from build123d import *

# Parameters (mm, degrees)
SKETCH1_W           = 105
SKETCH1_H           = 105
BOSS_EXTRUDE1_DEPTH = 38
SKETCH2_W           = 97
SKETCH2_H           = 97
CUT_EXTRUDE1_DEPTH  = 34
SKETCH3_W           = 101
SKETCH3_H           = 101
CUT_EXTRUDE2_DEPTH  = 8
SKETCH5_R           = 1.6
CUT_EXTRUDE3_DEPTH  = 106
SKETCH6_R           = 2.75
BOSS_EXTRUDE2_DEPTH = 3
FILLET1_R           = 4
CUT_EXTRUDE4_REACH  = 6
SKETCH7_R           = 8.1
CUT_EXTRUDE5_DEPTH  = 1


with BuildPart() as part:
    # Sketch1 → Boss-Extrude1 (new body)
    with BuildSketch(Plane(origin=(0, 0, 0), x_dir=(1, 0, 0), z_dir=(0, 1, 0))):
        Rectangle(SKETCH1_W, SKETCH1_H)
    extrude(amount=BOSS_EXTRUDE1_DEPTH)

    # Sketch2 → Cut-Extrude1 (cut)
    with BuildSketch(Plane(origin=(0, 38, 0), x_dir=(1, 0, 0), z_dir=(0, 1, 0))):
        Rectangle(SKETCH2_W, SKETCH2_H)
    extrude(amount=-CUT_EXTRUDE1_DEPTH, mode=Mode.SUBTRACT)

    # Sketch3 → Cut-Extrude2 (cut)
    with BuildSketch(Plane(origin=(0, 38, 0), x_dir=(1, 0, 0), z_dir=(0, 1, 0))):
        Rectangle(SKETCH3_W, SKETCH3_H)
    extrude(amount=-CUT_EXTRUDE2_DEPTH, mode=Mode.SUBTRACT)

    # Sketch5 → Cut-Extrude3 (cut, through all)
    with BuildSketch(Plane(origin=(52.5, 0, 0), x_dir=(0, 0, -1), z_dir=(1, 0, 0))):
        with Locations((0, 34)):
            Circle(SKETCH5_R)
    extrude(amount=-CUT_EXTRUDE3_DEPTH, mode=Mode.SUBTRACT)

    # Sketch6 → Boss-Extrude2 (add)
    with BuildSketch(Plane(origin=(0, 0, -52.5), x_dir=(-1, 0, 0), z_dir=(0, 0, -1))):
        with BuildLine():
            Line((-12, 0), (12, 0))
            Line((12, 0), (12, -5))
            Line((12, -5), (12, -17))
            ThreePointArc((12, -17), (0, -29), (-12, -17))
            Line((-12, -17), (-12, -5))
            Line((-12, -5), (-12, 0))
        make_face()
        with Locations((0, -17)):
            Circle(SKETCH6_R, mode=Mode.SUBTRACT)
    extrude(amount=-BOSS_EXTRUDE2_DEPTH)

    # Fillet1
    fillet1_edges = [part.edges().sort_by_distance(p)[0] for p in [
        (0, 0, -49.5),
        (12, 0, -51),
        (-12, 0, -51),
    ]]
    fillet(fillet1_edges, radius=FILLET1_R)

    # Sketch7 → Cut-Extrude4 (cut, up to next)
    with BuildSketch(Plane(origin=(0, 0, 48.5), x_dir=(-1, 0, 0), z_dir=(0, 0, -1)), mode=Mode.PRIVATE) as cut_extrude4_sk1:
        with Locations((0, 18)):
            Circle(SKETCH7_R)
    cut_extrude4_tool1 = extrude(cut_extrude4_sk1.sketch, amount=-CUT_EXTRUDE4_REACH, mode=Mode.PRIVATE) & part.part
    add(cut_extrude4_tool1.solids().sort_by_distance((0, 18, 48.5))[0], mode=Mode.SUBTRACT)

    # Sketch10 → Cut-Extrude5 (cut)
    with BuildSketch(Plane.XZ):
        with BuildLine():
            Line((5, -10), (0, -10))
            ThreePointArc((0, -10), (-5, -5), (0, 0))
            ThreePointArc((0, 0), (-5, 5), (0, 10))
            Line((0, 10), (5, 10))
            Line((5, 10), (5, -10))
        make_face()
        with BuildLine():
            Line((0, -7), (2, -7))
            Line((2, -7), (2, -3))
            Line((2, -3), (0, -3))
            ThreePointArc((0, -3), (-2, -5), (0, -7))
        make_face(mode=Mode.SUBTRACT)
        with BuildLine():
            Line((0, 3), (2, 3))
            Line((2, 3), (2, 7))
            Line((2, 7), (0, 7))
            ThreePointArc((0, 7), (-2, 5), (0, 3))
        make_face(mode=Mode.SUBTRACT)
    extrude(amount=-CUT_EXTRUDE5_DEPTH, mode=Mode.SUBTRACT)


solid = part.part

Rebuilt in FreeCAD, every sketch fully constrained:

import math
import FreeCAD as App
import Part
import Sketcher

V = App.Vector


def edges_at(feature, points):
    """Names of the edges that pass closest to the given points."""
    edges = feature.Shape.Edges
    near = lambda p: min(range(len(edges)), key=lambda i: edges[i].distToShape(Part.Vertex(*p))[0])
    return sorted({f"Edge{near(p) + 1}" for p in points})

doc = App.newDocument("Part")
body = doc.addObject("PartDesign::Body", "Body")

# Sketch on XZ plane
sketch1 = body.newObject("Sketcher::SketchObject", "Sketch")
sketch1.AttachmentSupport = (doc.getObject("XZ_Plane"), [""])
sketch1.MapMode = "FlatFace"
sketch1.addGeometry(Part.LineSegment(V(-52, -52, 0), V(-52, 52, 0)), False)
sketch1.addGeometry(Part.LineSegment(V(-52, 52, 0), V(52, 52, 0)), False)
sketch1.addGeometry(Part.LineSegment(V(52, 52, 0), V(52, -52, 0)), False)
sketch1.addGeometry(Part.LineSegment(V(52, -52, 0), V(-52, -52, 0)), False)
sketch1.addConstraint(Sketcher.Constraint("Coincident", 0, 2, 1, 1))
sketch1.addConstraint(Sketcher.Constraint("Coincident", 1, 2, 2, 1))
sketch1.addConstraint(Sketcher.Constraint("Coincident", 2, 2, 3, 1))
sketch1.addConstraint(Sketcher.Constraint("Coincident", 3, 2, 0, 1))
sketch1.addConstraint(Sketcher.Constraint("Vertical", 0))
sketch1.addConstraint(Sketcher.Constraint("Horizontal", 1))
sketch1.addConstraint(Sketcher.Constraint("Vertical", 2))
sketch1.addConstraint(Sketcher.Constraint("Horizontal", 3))
sketch1.addConstraint(Sketcher.Constraint("Symmetric", 0, 2, 2, 2, -1, 1))
sketch1.addConstraint(Sketcher.Constraint("Equal", 3, 0))
sketch1.addConstraint(Sketcher.Constraint("DistanceX", 1, 1, 1, 2, 105.0))
pad1 = body.newObject("PartDesign::Pad", "Pad")
pad1.Profile = sketch1
pad1.Length = 38
pad1.Reversed = True

# Sketch on XZ plane
sketch2 = body.newObject("Sketcher::SketchObject", "Sketch001")
sketch2.AttachmentSupport = (doc.getObject("XZ_Plane"), [""])
sketch2.MapMode = "FlatFace"
sketch2.AttachmentOffset = App.Placement(V(0, 0, -38), App.Rotation())
sketch2.addGeometry(Part.LineSegment(V(-48, -48, 0), V(-48, 48, 0)), False)
sketch2.addGeometry(Part.LineSegment(V(-48, 48, 0), V(48, 48, 0)), False)
sketch2.addGeometry(Part.LineSegment(V(48, 48, 0), V(48, -48, 0)), False)
sketch2.addGeometry(Part.LineSegment(V(48, -48, 0), V(-48, -48, 0)), False)
sketch2.addConstraint(Sketcher.Constraint("Coincident", 0, 2, 1, 1))
sketch2.addConstraint(Sketcher.Constraint("Coincident", 1, 2, 2, 1))
sketch2.addConstraint(Sketcher.Constraint("Coincident", 2, 2, 3, 1))
sketch2.addConstraint(Sketcher.Constraint("Coincident", 3, 2, 0, 1))
sketch2.addConstraint(Sketcher.Constraint("Vertical", 0))
sketch2.addConstraint(Sketcher.Constraint("Horizontal", 1))
sketch2.addConstraint(Sketcher.Constraint("Vertical", 2))
sketch2.addConstraint(Sketcher.Constraint("Horizontal", 3))
sketch2.addConstraint(Sketcher.Constraint("Symmetric", 0, 2, 2, 2, -1, 1))
sketch2.addConstraint(Sketcher.Constraint("Equal", 3, 0))
sketch2.addConstraint(Sketcher.Constraint("DistanceX", 1, 1, 1, 2, 97.0))
pocket1 = body.newObject("PartDesign::Pocket", "Pocket")
pocket1.Profile = sketch2
pocket1.Length = 34
pocket1.Reversed = True

# Sketch on XZ plane
sketch3 = body.newObject("Sketcher::SketchObject", "Sketch002")
sketch3.AttachmentSupport = (doc.getObject("XZ_Plane"), [""])
sketch3.MapMode = "FlatFace"
sketch3.AttachmentOffset = App.Placement(V(0, 0, -38), App.Rotation())
sketch3.addGeometry(Part.LineSegment(V(-50, -50, 0), V(-50, 50, 0)), False)
sketch3.addGeometry(Part.LineSegment(V(-50, 50, 0), V(50, 50, 0)), False)
sketch3.addGeometry(Part.LineSegment(V(50, 50, 0), V(50, -50, 0)), False)
sketch3.addGeometry(Part.LineSegment(V(50, -50, 0), V(-50, -50, 0)), False)
sketch3.addConstraint(Sketcher.Constraint("Coincident", 0, 2, 1, 1))
sketch3.addConstraint(Sketcher.Constraint("Coincident", 1, 2, 2, 1))
sketch3.addConstraint(Sketcher.Constraint("Coincident", 2, 2, 3, 1))
sketch3.addConstraint(Sketcher.Constraint("Coincident", 3, 2, 0, 1))
sketch3.addConstraint(Sketcher.Constraint("Vertical", 0))
sketch3.addConstraint(Sketcher.Constraint("Horizontal", 1))
sketch3.addConstraint(Sketcher.Constraint("Vertical", 2))
sketch3.addConstraint(Sketcher.Constraint("Horizontal", 3))
sketch3.addConstraint(Sketcher.Constraint("Symmetric", 0, 2, 2, 2, -1, 1))
sketch3.addConstraint(Sketcher.Constraint("Equal", 3, 0))
sketch3.addConstraint(Sketcher.Constraint("DistanceX", 1, 1, 1, 2, 101.0))
pocket2 = body.newObject("PartDesign::Pocket", "Pocket001")
pocket2.Profile = sketch3
pocket2.Length = 8
pocket2.Reversed = True

# Sketch on YZ plane
sketch4 = body.newObject("Sketcher::SketchObject", "Sketch003")
sketch4.AttachmentSupport = (doc.getObject("YZ_Plane"), [""])
sketch4.MapMode = "FlatFace"
sketch4.AttachmentOffset = App.Placement(V(0, 0, 52.5), App.Rotation())
sketch4.addGeometry(Part.Circle(V(34, 0, 0), V(0, 0, 1), 1.6), False)
sketch4.addConstraint(Sketcher.Constraint("PointOnObject", 0, 3, -1))
sketch4.addConstraint(Sketcher.Constraint("Diameter", 0, 3.2))
sketch4.addConstraint(Sketcher.Constraint("DistanceX", -1, 1, 0, 3, 34.0))
pocket3 = body.newObject("PartDesign::Pocket", "Pocket002")
pocket3.Profile = sketch4
pocket3.Type = "ThroughAll"

# Sketch on XY plane
sketch5 = body.newObject("Sketcher::SketchObject", "Sketch004")
sketch5.AttachmentSupport = (doc.getObject("XY_Plane"), [""])
sketch5.MapMode = "FlatFace"
sketch5.AttachmentOffset = App.Placement(V(0, 0, -52.5), App.Rotation())
sketch5.addGeometry(Part.LineSegment(V(-12, 0, 0), V(12, 0, 0)), False)
sketch5.addGeometry(Part.LineSegment(V(12, 0, 0), V(12, -17, 0)), False)
sketch5.addGeometry(Part.ArcOfCircle(Part.Circle(V(0, -17, 0), V(0, 0, 1), 12), math.radians(180), math.radians(360)), False)
sketch5.addGeometry(Part.LineSegment(V(-12, -17, 0), V(-12, 0, 0)), False)
sketch5.addGeometry(Part.Circle(V(0, -17, 0), V(0, 0, 1), 2.8), False)
sketch5.addConstraint(Sketcher.Constraint("Coincident", 0, 2, 1, 1))
sketch5.addConstraint(Sketcher.Constraint("Tangent", 1, 2, 2, 2))
sketch5.addConstraint(Sketcher.Constraint("Tangent", 2, 1, 3, 1))
sketch5.addConstraint(Sketcher.Constraint("Coincident", 3, 2, 0, 1))
sketch5.addConstraint(Sketcher.Constraint("Horizontal", 0))
sketch5.addConstraint(Sketcher.Constraint("Vertical", 1))
sketch5.addConstraint(Sketcher.Constraint("Vertical", 3))
sketch5.addConstraint(Sketcher.Constraint("Coincident", 4, 3, 2, 3))
sketch5.addConstraint(Sketcher.Constraint("Symmetric", 0, 2, 3, 2, -1, 1))
sketch5.addConstraint(Sketcher.Constraint("Radius", 2, 12.0))
sketch5.addConstraint(Sketcher.Constraint("Diameter", 4, 5.5))
sketch5.addConstraint(Sketcher.Constraint("DistanceY", 1, 2, 1, 1, 17.0))
pad2 = body.newObject("PartDesign::Pad", "Pad001")
pad2.Profile = sketch5
pad2.Length = 3
doc.recompute()

fillet = body.newObject("PartDesign::Fillet", "Fillet")
fillet.Base = (pad2, edges_at(pad2, [(0, 0, -49.5), (12, 0, -51), (-12, 0, -51)]))
fillet.Radius = 4

# Sketch on XY plane
sketch6 = body.newObject("Sketcher::SketchObject", "Sketch005")
sketch6.AttachmentSupport = (doc.getObject("XY_Plane"), [""])
sketch6.MapMode = "FlatFace"
sketch6.AttachmentOffset = App.Placement(V(0, 0, 48.5), App.Rotation())
sketch6.addGeometry(Part.Circle(V(0, 18, 0), V(0, 0, 1), 8), False)
sketch6.addConstraint(Sketcher.Constraint("PointOnObject", 0, 3, -2))
sketch6.addConstraint(Sketcher.Constraint("Diameter", 0, 16.2))
sketch6.addConstraint(Sketcher.Constraint("DistanceY", -1, 1, 0, 3, 18.0))
pocket4 = body.newObject("PartDesign::Pocket", "Pocket003")
pocket4.Profile = sketch6
pocket4.Type = "UpToFirst"
pocket4.Reversed = True

# Sketch on XZ plane
sketch7 = body.newObject("Sketcher::SketchObject", "Sketch006")
sketch7.AttachmentSupport = (doc.getObject("XZ_Plane"), [""])
sketch7.MapMode = "FlatFace"
sketch7.addGeometry(Part.LineSegment(V(0, -10, 0), V(5, -10, 0)), False)
sketch7.addGeometry(Part.LineSegment(V(5, -10, 0), V(5, 10, 0)), False)
sketch7.addGeometry(Part.LineSegment(V(5, 10, 0), V(0, 10, 0)), False)
sketch7.addGeometry(Part.ArcOfCircle(Part.Circle(V(0, 5, 0), V(0, 0, 1), 5), math.radians(90), math.radians(270)), False)
sketch7.addGeometry(Part.ArcOfCircle(Part.Circle(V(0, -5, 0), V(0, 0, 1), 5), math.radians(90), math.radians(270)), False)
sketch7.addGeometry(Part.ArcOfCircle(Part.Circle(V(0, -5, 0), V(0, 0, 1), 2), math.radians(90), math.radians(270)), False)
sketch7.addGeometry(Part.LineSegment(V(0, -3, 0), V(2, -3, 0)), False)
sketch7.addGeometry(Part.LineSegment(V(2, -3, 0), V(2, -7, 0)), False)
sketch7.addGeometry(Part.LineSegment(V(2, -7, 0), V(0, -7, 0)), False)
sketch7.addGeometry(Part.ArcOfCircle(Part.Circle(V(0, 5, 0), V(0, 0, 1), 2), math.radians(90), math.radians(270)), False)
sketch7.addGeometry(Part.LineSegment(V(0, 7, 0), V(2, 7, 0)), False)
sketch7.addGeometry(Part.LineSegment(V(2, 7, 0), V(2, 3, 0)), False)
sketch7.addGeometry(Part.LineSegment(V(2, 3, 0), V(0, 3, 0)), False)
sketch7.addConstraint(Sketcher.Constraint("Coincident", 0, 2, 1, 1))
sketch7.addConstraint(Sketcher.Constraint("Coincident", 1, 2, 2, 1))
sketch7.addConstraint(Sketcher.Constraint("Tangent", 2, 2, 3, 1))
sketch7.addConstraint(Sketcher.Constraint("Tangent", 3, 2, 4, 1))
sketch7.addConstraint(Sketcher.Constraint("Tangent", 4, 2, 0, 1))
sketch7.addConstraint(Sketcher.Constraint("Tangent", 5, 1, 6, 1))
sketch7.addConstraint(Sketcher.Constraint("Coincident", 6, 2, 7, 1))
sketch7.addConstraint(Sketcher.Constraint("Coincident", 7, 2, 8, 1))
sketch7.addConstraint(Sketcher.Constraint("Tangent", 8, 2, 5, 2))
sketch7.addConstraint(Sketcher.Constraint("Tangent", 9, 1, 10, 1))
sketch7.addConstraint(Sketcher.Constraint("Coincident", 10, 2, 11, 1))
sketch7.addConstraint(Sketcher.Constraint("Coincident", 11, 2, 12, 1))
sketch7.addConstraint(Sketcher.Constraint("Tangent", 12, 2, 9, 2))
sketch7.addConstraint(Sketcher.Constraint("Horizontal", 0))
sketch7.addConstraint(Sketcher.Constraint("Vertical", 1))
sketch7.addConstraint(Sketcher.Constraint("Horizontal", 2))
sketch7.addConstraint(Sketcher.Constraint("Horizontal", 6))
sketch7.addConstraint(Sketcher.Constraint("Vertical", 7))
sketch7.addConstraint(Sketcher.Constraint("Horizontal", 8))
sketch7.addConstraint(Sketcher.Constraint("Horizontal", 10))
sketch7.addConstraint(Sketcher.Constraint("Vertical", 11))
sketch7.addConstraint(Sketcher.Constraint("Horizontal", 12))
sketch7.addConstraint(Sketcher.Constraint("Coincident", 3, 2, -1, 1))
sketch7.addConstraint(Sketcher.Constraint("Coincident", 5, 3, 4, 3))
sketch7.addConstraint(Sketcher.Constraint("Coincident", 9, 3, 3, 3))
sketch7.addConstraint(Sketcher.Constraint("Equal", 3, 4))
sketch7.addConstraint(Sketcher.Constraint("Equal", 5, 9))
sketch7.addConstraint(Sketcher.Constraint("PointOnObject", 3, 3, -2))
sketch7.addConstraint(Sketcher.Constraint("Vertical", 7, 2, 10, 2))
sketch7.addConstraint(Sketcher.Constraint("Radius", 3, 5.0))
sketch7.addConstraint(Sketcher.Constraint("Radius", 5, 2.0))
sketch7.addConstraint(Sketcher.Constraint("DistanceX", 0, 1, 0, 2, 5.0))
sketch7.addConstraint(Sketcher.Constraint("DistanceX", 6, 1, 6, 2, 2.0))
pocket5 = body.newObject("PartDesign::Pocket", "Pocket004")
pocket5.Profile = sketch7
pocket5.Length = 1

doc.recompute()
